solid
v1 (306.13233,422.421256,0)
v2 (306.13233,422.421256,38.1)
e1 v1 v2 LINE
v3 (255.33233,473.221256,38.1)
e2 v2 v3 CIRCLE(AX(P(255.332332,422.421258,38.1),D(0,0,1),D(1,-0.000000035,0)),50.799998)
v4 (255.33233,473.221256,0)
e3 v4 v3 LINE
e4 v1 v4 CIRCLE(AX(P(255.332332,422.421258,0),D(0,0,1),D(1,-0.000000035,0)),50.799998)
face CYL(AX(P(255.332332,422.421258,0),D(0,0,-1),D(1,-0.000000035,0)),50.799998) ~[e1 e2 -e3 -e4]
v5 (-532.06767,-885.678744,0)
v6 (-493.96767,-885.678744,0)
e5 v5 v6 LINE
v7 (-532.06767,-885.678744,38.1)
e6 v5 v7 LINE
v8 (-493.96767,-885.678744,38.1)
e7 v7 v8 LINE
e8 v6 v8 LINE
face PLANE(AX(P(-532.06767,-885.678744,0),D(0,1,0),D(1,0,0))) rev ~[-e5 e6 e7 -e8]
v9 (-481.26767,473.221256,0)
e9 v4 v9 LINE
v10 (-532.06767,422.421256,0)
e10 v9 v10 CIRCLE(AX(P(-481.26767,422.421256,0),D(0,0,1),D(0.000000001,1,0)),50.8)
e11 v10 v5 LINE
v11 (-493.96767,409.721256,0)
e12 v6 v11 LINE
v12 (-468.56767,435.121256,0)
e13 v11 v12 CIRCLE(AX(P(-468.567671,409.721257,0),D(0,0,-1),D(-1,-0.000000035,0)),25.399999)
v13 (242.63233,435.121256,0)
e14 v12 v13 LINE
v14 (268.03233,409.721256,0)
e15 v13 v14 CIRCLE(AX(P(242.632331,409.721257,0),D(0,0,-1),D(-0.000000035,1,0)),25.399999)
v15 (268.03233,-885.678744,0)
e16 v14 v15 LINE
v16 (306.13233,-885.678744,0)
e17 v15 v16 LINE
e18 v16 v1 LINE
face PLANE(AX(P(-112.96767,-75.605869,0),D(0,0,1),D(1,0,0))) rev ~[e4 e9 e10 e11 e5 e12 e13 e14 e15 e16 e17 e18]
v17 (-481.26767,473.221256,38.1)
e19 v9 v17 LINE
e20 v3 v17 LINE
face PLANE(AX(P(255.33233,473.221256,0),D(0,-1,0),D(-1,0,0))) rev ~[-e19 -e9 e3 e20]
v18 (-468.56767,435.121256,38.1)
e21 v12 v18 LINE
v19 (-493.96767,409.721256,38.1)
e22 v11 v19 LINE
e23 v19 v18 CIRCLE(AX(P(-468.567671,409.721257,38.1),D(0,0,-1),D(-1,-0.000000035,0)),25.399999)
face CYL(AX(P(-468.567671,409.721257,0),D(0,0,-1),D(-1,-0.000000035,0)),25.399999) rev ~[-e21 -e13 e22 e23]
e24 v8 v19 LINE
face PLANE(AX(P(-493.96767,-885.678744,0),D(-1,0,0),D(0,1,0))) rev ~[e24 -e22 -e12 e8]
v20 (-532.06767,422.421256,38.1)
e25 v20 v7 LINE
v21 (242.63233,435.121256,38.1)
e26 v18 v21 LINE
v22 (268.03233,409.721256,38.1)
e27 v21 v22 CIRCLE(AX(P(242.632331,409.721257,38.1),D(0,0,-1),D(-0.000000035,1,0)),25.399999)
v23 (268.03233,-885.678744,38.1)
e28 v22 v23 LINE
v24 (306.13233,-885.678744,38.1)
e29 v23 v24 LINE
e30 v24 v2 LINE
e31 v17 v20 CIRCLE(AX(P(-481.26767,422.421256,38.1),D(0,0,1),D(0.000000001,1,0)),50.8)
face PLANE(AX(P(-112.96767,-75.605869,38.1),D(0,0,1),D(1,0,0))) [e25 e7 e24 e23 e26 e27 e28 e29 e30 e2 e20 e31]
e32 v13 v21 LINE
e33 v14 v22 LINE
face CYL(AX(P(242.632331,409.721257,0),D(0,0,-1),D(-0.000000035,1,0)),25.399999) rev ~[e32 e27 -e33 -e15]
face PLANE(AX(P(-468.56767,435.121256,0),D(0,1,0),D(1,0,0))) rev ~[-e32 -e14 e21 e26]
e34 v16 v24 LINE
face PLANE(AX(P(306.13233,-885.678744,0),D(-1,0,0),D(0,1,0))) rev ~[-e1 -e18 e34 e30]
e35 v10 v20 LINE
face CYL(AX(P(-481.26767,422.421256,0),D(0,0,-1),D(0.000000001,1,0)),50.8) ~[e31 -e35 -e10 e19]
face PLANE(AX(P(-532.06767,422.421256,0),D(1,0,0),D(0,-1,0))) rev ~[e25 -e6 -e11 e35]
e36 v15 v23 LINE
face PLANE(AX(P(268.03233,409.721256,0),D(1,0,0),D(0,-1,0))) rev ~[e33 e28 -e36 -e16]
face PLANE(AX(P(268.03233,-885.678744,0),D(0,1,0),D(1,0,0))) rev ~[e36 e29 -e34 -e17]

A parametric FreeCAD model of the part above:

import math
import FreeCAD as App
import Part
import Sketcher
Q = App.Units.Quantity

doc = App.newDocument("Part")
body = doc.addObject("PartDesign::Body", "Body")

# Sketch on XY plane
sketch1 = body.newObject("Sketcher::SketchObject", "Sketch")
sketch1.AttachmentSupport = (doc.getObject("XY_Plane"), [""])
sketch1.MapMode = "FlatFace"
sketch1.addGeometry([
    Part.LineSegment(App.Vector(255, 473, 0), App.Vector(-481, 473, 0)),  # 0
    Part.ArcOfCircle(Part.Circle(App.Vector(-481, 422, 0), App.Vector(0, 0, 1), 51), math.radians(90), math.radians(180)),  # 1
    Part.LineSegment(App.Vector(-532, 422, 0), App.Vector(-532, -886, 0)),  # 2
    Part.LineSegment(App.Vector(-532, -886, 0), App.Vector(-494, -886, 0)),  # 3
    Part.LineSegment(App.Vector(-494, -886, 0), App.Vector(-494, 410, 0)),  # 4
    Part.ArcOfCircle(Part.Circle(App.Vector(-469, 410, 0), App.Vector(0, 0, 1), 25), math.radians(90), math.radians(180)),  # 5
    Part.LineSegment(App.Vector(-469, 435, 0), App.Vector(243, 435, 0)),  # 6
    Part.ArcOfCircle(Part.Circle(App.Vector(243, 410, 0), App.Vector(0, 0, 1), 25), math.radians(0), math.radians(90)),  # 7
    Part.LineSegment(App.Vector(268, 410, 0), App.Vector(268, -886, 0)),  # 8
    Part.LineSegment(App.Vector(268, -886, 0), App.Vector(306, -886, 0)),  # 9
    Part.LineSegment(App.Vector(306, -886, 0), App.Vector(306, 422, 0)),  # 10
    Part.ArcOfCircle(Part.Circle(App.Vector(255, 422, 0), App.Vector(0, 0, 1), 51), math.radians(0), math.radians(90)),  # 11
], False)
sketch1.addConstraint([
    Sketcher.Constraint("Tangent", 0, 2, 1, 1),
    Sketcher.Constraint("Tangent", 1, 2, 2, 1),
    Sketcher.Constraint("Coincident", 2, 2, 3, 1),
    Sketcher.Constraint("Coincident", 3, 2, 4, 1),
    Sketcher.Constraint("Tangent", 4, 2, 5, 2),
    Sketcher.Constraint("Tangent", 5, 1, 6, 1),
    Sketcher.Constraint("Tangent", 6, 2, 7, 2),
    Sketcher.Constraint("Tangent", 7, 1, 8, 1),
    Sketcher.Constraint("Coincident", 8, 2, 9, 1),
    Sketcher.Constraint("Coincident", 9, 2, 10, 1),
    Sketcher.Constraint("Tangent", 10, 2, 11, 1),
    Sketcher.Constraint("Tangent", 11, 2, 0, 1),
    Sketcher.Constraint("Horizontal", 0),
    Sketcher.Constraint("Vertical", 2),
    Sketcher.Constraint("Horizontal", 3),
    Sketcher.Constraint("Vertical", 4),
    Sketcher.Constraint("Horizontal", 6),
    Sketcher.Constraint("Vertical", 8),
    Sketcher.Constraint("Horizontal", 9),
    Sketcher.Constraint("Vertical", 10),
    Sketcher.Constraint("Equal", 5, 7),
    Sketcher.Constraint("Equal", 1, 11),
    Sketcher.Constraint("Horizontal", 3, 2, 8, 2),
    Sketcher.Constraint("Equal", 3, 9),
    Sketcher.Constraint("Radius", 1, Q("2 in")),
    Sketcher.Constraint("Radius", 5, Q("1 in")),
    Sketcher.Constraint("DistanceX", 0, 2, 0, 1, Q("29 in")),
    Sketcher.Constraint("DistanceX", 6, 1, 6, 2, Q("28 in")),
    Sketcher.Constraint("DistanceY", 4, 1, 4, 2, Q("51 in")),
    Sketcher.Constraint("DistanceY", 2, 2, 2, 1, Q("51.5 in")),
    Sketcher.Constraint("DistanceX", 1, 3, -1, 1, 481.26767),
    Sketcher.Constraint("DistanceY", -1, 1, 1, 3, 422.421256),
])
pad1 = body.newObject("PartDesign::Pad", "Pad")
pad1.Profile = sketch1
pad1.Length = Q("1.5 in")

doc.recompute()
